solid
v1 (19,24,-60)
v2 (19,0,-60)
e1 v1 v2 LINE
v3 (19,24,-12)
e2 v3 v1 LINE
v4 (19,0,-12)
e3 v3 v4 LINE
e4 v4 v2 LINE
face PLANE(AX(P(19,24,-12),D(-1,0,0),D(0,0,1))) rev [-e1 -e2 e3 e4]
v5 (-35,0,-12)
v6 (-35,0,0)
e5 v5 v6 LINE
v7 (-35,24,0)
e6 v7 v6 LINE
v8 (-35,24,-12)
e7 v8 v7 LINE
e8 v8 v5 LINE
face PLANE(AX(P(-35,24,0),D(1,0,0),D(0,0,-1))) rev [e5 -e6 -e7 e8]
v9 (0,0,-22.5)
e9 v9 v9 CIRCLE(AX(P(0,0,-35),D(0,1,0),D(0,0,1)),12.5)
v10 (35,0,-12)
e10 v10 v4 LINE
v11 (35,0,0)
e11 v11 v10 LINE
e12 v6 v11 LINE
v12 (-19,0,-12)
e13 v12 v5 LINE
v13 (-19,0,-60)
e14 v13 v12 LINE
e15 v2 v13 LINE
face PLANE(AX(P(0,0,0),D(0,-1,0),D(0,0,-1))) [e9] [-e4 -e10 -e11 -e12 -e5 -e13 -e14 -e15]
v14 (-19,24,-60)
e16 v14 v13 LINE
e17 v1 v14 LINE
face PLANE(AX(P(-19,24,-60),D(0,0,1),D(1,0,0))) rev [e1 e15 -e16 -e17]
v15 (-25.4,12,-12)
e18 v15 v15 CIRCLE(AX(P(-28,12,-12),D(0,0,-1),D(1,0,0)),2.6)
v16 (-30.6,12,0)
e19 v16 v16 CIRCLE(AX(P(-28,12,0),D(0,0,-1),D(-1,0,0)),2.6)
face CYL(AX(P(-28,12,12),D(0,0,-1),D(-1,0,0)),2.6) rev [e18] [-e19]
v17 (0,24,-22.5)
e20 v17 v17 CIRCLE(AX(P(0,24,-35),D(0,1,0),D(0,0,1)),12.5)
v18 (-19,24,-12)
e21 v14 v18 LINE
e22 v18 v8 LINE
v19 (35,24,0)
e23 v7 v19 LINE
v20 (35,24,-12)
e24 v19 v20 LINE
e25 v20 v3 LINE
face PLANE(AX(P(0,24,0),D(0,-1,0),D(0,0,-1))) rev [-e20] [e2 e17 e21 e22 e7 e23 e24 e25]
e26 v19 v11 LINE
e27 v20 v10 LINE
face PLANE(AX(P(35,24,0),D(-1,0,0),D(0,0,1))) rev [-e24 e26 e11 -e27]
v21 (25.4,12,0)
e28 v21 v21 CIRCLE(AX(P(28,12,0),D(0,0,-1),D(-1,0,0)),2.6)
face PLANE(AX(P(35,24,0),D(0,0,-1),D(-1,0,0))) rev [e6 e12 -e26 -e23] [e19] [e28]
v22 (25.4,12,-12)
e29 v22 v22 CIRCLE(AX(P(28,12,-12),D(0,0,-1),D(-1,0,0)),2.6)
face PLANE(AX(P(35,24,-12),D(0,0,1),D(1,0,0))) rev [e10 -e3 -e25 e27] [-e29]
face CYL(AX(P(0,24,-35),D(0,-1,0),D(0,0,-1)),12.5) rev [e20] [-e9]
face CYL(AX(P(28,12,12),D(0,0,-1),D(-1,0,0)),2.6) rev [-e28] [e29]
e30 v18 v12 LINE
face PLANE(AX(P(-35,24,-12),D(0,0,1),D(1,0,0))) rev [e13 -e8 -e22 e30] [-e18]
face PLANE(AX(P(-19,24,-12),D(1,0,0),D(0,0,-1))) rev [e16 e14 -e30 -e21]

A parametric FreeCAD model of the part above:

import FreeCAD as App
import Part
import Sketcher

V = App.Vector
Q = App.Units.Quantity

doc = App.newDocument("Part")
body = doc.addObject("PartDesign::Body", "Body")

# Sketch on XZ plane
sketch1 = body.newObject("Sketcher::SketchObject", "Sketch")
sketch1.AttachmentSupport = (doc.getObject("XZ_Plane"), [""])
sketch1.MapMode = "FlatFace"
sketch1.addGeometry([
    Part.LineSegment(V(-35, 0, 0), V(35, 0, 0)),  # 0
    Part.LineSegment(V(35, 0, 0), V(35, -12, 0)),  # 1
    Part.LineSegment(V(35, -12, 0), V(19, -12, 0)),  # 2
    Part.LineSegment(V(19, -12, 0), V(19, -60, 0)),  # 3
    Part.LineSegment(V(19, -60, 0), V(-19, -60, 0)),  # 4
    Part.LineSegment(V(-19, -60, 0), V(-19, -12, 0)),  # 5
    Part.LineSegment(V(-19, -12, 0), V(-35, -12, 0)),  # 6
    Part.LineSegment(V(-35, -12, 0), V(-35, 0, 0)),  # 7
    Part.Circle(V(0, -35, 0), V(0, 0, 1), 12),  # 8
], False)
sketch1.addConstraint([
    Sketcher.Constraint("Coincident", 0, 2, 1, 1),
    Sketcher.Constraint("Coincident", 1, 2, 2, 1),
    Sketcher.Constraint("Coincident", 2, 2, 3, 1),
    Sketcher.Constraint("Coincident", 3, 2, 4, 1),
    Sketcher.Constraint("Coincident", 4, 2, 5, 1),
    Sketcher.Constraint("Coincident", 5, 2, 6, 1),
    Sketcher.Constraint("Coincident", 6, 2, 7, 1),
    Sketcher.Constraint("Coincident", 7, 2, 0, 1),
    Sketcher.Constraint("Horizontal", 0),
    Sketcher.Constraint("Vertical", 1),
    Sketcher.Constraint("Horizontal", 2),
    Sketcher.Constraint("Vertical", 3),
    Sketcher.Constraint("Horizontal", 4),
    Sketcher.Constraint("Vertical", 5),
    Sketcher.Constraint("Horizontal", 6),
    Sketcher.Constraint("Vertical", 7),
    Sketcher.Constraint("Symmetric", 0, 2, 7, 2, -1, 1),
    Sketcher.Constraint("Symmetric", 2, 2, 5, 2, -2),
    Sketcher.Constraint("PointOnObject", 8, 3, -2),
    Sketcher.Constraint("Diameter", 8, Q("25 mm")),
    Sketcher.Constraint("DistanceX", 0, 1, 0, 2, Q("70 mm")),
    Sketcher.Constraint("DistanceX", 2, 2, 2, 1, Q("16 mm")),
    Sketcher.Constraint("DistanceY", 1, 2, 1, 1, Q("12 mm")),
    Sketcher.Constraint("DistanceY", 3, 2, 3, 1, Q("48 mm")),
    Sketcher.Constraint("DistanceY", 8, 3, -1, 1, Q("35 mm")),
])
pad1 = body.newObject("PartDesign::Pad", "Pad")
pad1.Profile = sketch1
pad1.Length = 24
pad1.Reversed = True

# Sketch on XY plane
sketch2 = body.newObject("Sketcher::SketchObject", "Sketch001")
sketch2.AttachmentSupport = (doc.getObject("XY_Plane"), [""])
sketch2.MapMode = "FlatFace"
sketch2.AttachmentOffset = App.Placement(V(0, 0, -12), App.Rotation())
sketch2.addGeometry([
    Part.Circle(V(28, 12, 0), V(0, 0, 1), 2.6),
    Part.Circle(V(-28, 12, 0), V(0, 0, 1), 2.6),
], False)
sketch2.addConstraint([
    Sketcher.Constraint("Equal", 0, 1),
    Sketcher.Constraint("Symmetric", 0, 3, 1, 3, -2),
    Sketcher.Constraint("Diameter", 0, Q("5.2 mm")),
    Sketcher.Constraint("DistanceX", -1, 1, 0, 3, Q("28 mm")),
    Sketcher.Constraint("DistanceY", -1, 1, 0, 3, Q("12 mm")),
])
pocket1 = body.newObject("PartDesign::Pocket", "Pocket")
pocket1.Profile = sketch2
pocket1.Length = 24
pocket1.Reversed = True

doc.recompute()
